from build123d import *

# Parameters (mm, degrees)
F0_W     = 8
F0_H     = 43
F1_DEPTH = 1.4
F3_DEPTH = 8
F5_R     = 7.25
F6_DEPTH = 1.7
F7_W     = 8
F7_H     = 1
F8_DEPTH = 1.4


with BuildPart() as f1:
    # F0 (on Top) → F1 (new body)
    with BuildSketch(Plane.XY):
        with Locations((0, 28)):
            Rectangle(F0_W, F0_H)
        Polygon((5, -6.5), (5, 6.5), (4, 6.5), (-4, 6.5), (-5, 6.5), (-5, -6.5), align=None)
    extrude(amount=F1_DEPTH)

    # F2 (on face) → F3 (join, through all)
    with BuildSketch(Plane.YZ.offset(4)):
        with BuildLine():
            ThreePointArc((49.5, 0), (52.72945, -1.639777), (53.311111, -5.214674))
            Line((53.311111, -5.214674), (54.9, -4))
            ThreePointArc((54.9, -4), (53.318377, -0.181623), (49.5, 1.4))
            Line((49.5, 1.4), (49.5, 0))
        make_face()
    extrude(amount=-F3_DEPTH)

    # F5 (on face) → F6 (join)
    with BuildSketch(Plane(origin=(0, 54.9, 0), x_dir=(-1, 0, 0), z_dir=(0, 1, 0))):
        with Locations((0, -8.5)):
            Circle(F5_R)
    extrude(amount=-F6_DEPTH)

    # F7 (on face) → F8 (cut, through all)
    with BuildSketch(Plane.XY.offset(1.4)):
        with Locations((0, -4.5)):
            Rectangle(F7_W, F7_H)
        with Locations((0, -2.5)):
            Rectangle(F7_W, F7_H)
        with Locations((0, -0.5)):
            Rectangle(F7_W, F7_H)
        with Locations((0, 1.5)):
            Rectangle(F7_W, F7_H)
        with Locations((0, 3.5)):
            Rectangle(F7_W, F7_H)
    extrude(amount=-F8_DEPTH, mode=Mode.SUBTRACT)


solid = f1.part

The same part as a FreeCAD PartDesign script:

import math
import FreeCAD as App
import Part
import Sketcher
Q = App.Units.Quantity


def add_polygon(sketch, points):
    """Adds a closed chain of lines whose ends are joined by coincident constraints."""
    first, n = sketch.GeometryCount, len(points)
    for a, b in zip(points, points[1:] + points[:1]):
        sketch.addGeometry(Part.LineSegment(App.Vector(*a, 0), App.Vector(*b, 0)), False)
    for i in range(n):
        sketch.addConstraint(Sketcher.Constraint("Coincident", first + i, 2, first + (i + 1) % n, 1))

doc = App.newDocument("Part")
body = doc.addObject("PartDesign::Body", "Body")

# Sketch on XY plane
sketch1 = body.newObject("Sketcher::SketchObject", "Sketch")
sketch1.AttachmentSupport = (doc.getObject("XY_Plane"), [""])
sketch1.MapMode = "FlatFace"
add_polygon(sketch1, [(5, -6.5), (5, 6.5), (4, 6.5), (4, 49.5), (-4, 49.5), (-4, 6.5), (-5, 6.5), (-5, -6.5)])  # lines 0-7
sketch1.addConstraint([
    Sketcher.Constraint("Vertical", 0),
    Sketcher.Constraint("Horizontal", 1),
    Sketcher.Constraint("Vertical", 2),
    Sketcher.Constraint("Horizontal", 3),
    Sketcher.Constraint("Vertical", 4),
    Sketcher.Constraint("Horizontal", 5),
    Sketcher.Constraint("Vertical", 6),
    Sketcher.Constraint("Horizontal", 7),
    Sketcher.Constraint("Symmetric", 0, 2, 6, 2, -1, 1),
    Sketcher.Constraint("Symmetric", 1, 2, 4, 2, -2),
    Sketcher.Constraint("DistanceX", 1, 2, 1, 1, Q("1 mm")),
    Sketcher.Constraint("DistanceX", 3, 2, 3, 1, Q("8 mm")),
    Sketcher.Constraint("DistanceY", 0, 1, 0, 2, Q("13 mm")),
    Sketcher.Constraint("DistanceY", 2, 1, 2, 2, Q("43 mm")),
])
pad1 = body.newObject("PartDesign::Pad", "Pad")
pad1.Profile = sketch1
pad1.Length = 1.4

# Sketch on YZ plane
sketch2 = body.newObject("Sketcher::SketchObject", "Sketch001")
sketch2.AttachmentSupport = (doc.getObject("YZ_Plane"), [""])
sketch2.MapMode = "FlatFace"
sketch2.AttachmentOffset = App.Placement(App.Vector(0, 0, 4), App.Rotation())
sketch2.addGeometry([
    Part.ArcOfCircle(Part.Circle(App.Vector(49.5, -4, 0), App.Vector(0, 0, 1), 4), math.radians(-18), math.radians(90)),
    Part.LineSegment(App.Vector(53.3, -5.2, 0), App.Vector(54.9, -4, 0)),
    Part.ArcOfCircle(Part.Circle(App.Vector(49.5, -4, 0), App.Vector(0, 0, 1), 5.4), math.radians(0), math.radians(90)),
    Part.LineSegment(App.Vector(49.5, 1.4, 0), App.Vector(49.5, 0, 0)),
], False)
sketch2.addConstraint([
    Sketcher.Constraint("Coincident", 0, 1, 1, 1),
    Sketcher.Constraint("Coincident", 1, 2, 2, 1),
    Sketcher.Constraint("Coincident", 2, 2, 3, 1),
    Sketcher.Constraint("Coincident", 3, 2, 0, 2),
    Sketcher.Constraint("Vertical", 3),
    Sketcher.Constraint("Coincident", 2, 3, 0, 3),
    Sketcher.Constraint("PointOnObject", 3, 2, -1),
    Sketcher.Constraint("Horizontal", 2, 3, 1, 2),
    Sketcher.Constraint("Vertical", 0, 3, 2, 2),
    Sketcher.Constraint("Radius", 0, Q("4 mm")),
    Sketcher.Constraint("Radius", 2, Q("5.399999 mm")),
    Sketcher.Constraint("Distance", 1, Q("2 mm")),
    Sketcher.Constraint("DistanceX", -1, 1, 0, 3, Q("49.5 mm")),
])
pad2 = body.newObject("PartDesign::Pad", "Pad001")
pad2.Profile = sketch2
pad2.Length = 8
pad2.Reversed = True

# Sketch on XZ plane
sketch3 = body.newObject("Sketcher::SketchObject", "Sketch002")
sketch3.AttachmentSupport = (doc.getObject("XZ_Plane"), [""])
sketch3.MapMode = "FlatFace"
sketch3.AttachmentOffset = App.Placement(App.Vector(0, 0, -54.9), App.Rotation())
sketch3.addGeometry(Part.Circle(App.Vector(0, -8, 0), App.Vector(0, 0, 1), 7), False)
sketch3.addConstraint([
    Sketcher.Constraint("PointOnObject", 0, 3, -2),
    Sketcher.Constraint("Diameter", 0, Q("14.5 mm")),
    Sketcher.Constraint("DistanceY", 0, 3, -1, 1, Q("8.5 mm")),
])
pad3 = body.newObject("PartDesign::Pad", "Pad002")
pad3.Profile = sketch3
pad3.Length = 1.7

# Sketch on XY plane
sketch4 = body.newObject("Sketcher::SketchObject", "Sketch003")
sketch4.AttachmentSupport = (doc.getObject("XY_Plane"), [""])
sketch4.MapMode = "FlatFace"
sketch4.AttachmentOffset = App.Placement(App.Vector(0, 0, 1.4), App.Rotation())
add_polygon(sketch4, [(-4, -4), (-4, -5), (4, -5), (4, -4)])  # lines 0-3
add_polygon(sketch4, [(-4, -2), (-4, -3), (4, -3), (4, -2)])  # lines 4-7
add_polygon(sketch4, [(-4, 0), (-4, -1), (4, -1), (4, 0)])  # lines 8-11
add_polygon(sketch4, [(-4, 2), (-4, 1), (4, 1), (4, 2)])  # lines 12-15
add_polygon(sketch4, [(-4, 4), (-4, 3), (4, 3), (4, 4)])  # lines 16-19
sketch4.addConstraint([
    Sketcher.Constraint("Vertical", 0),
    Sketcher.Constraint("Horizontal", 1),
    Sketcher.Constraint("Vertical", 2),
    Sketcher.Constraint("Horizontal", 3),
    Sketcher.Constraint("Vertical", 4),
    Sketcher.Constraint("Horizontal", 5),
    Sketcher.Constraint("Vertical", 6),
    Sketcher.Constraint("Horizontal", 7),
    Sketcher.Constraint("Vertical", 8),
    Sketcher.Constraint("Horizontal", 9),
    Sketcher.Constraint("Vertical", 10),
    Sketcher.Constraint("Horizontal", 11),
    Sketcher.Constraint("Vertical", 12),
    Sketcher.Constraint("Horizontal", 13),
    Sketcher.Constraint("Vertical", 14),
    Sketcher.Constraint("Horizontal", 15),
    Sketcher.Constraint("Vertical", 16),
    Sketcher.Constraint("Horizontal", 17),
    Sketcher.Constraint("Vertical", 18),
    Sketcher.Constraint("Horizontal", 19),
    Sketcher.Constraint("Symmetric", 10, 2, 11, 2, -1, 1),
    Sketcher.Constraint("Symmetric", 9, 2, 12, 2, -1, 1),
    Sketcher.Constraint("Symmetric", 7, 2, 14, 2, -1, 1),
    Sketcher.Constraint("Symmetric", 5, 2, 16, 2, -1, 1),
    Sketcher.Constraint("Symmetric", 3, 2, 18, 2, -1, 1),
    Sketcher.Constraint("Vertical", 3, 2, 4, 2),
    Sketcher.Constraint("Vertical", 2, 2, 5, 2),
    Sketcher.Constraint("Vertical", 7, 2, 8, 2),
    Sketcher.Constraint("Vertical", 6, 2, 9, 2),
    Sketcher.Constraint("Equal", 2, 4),
    Sketcher.Constraint("Equal", 6, 8),
    Sketcher.Constraint("Equal", 10, 12),
    Sketcher.Constraint("Equal", 14, 16),
    Sketcher.Constraint("DistanceX", 1, 1, 1, 2, Q("8 mm")),
    Sketcher.Constraint("DistanceY", 0, 2, 0, 1, Q("1 mm")),
])
pocket1 = body.newObject("PartDesign::Pocket", "Pocket")
pocket1.Profile = sketch4
pocket1.Type = "ThroughAll"

doc.recompute()
